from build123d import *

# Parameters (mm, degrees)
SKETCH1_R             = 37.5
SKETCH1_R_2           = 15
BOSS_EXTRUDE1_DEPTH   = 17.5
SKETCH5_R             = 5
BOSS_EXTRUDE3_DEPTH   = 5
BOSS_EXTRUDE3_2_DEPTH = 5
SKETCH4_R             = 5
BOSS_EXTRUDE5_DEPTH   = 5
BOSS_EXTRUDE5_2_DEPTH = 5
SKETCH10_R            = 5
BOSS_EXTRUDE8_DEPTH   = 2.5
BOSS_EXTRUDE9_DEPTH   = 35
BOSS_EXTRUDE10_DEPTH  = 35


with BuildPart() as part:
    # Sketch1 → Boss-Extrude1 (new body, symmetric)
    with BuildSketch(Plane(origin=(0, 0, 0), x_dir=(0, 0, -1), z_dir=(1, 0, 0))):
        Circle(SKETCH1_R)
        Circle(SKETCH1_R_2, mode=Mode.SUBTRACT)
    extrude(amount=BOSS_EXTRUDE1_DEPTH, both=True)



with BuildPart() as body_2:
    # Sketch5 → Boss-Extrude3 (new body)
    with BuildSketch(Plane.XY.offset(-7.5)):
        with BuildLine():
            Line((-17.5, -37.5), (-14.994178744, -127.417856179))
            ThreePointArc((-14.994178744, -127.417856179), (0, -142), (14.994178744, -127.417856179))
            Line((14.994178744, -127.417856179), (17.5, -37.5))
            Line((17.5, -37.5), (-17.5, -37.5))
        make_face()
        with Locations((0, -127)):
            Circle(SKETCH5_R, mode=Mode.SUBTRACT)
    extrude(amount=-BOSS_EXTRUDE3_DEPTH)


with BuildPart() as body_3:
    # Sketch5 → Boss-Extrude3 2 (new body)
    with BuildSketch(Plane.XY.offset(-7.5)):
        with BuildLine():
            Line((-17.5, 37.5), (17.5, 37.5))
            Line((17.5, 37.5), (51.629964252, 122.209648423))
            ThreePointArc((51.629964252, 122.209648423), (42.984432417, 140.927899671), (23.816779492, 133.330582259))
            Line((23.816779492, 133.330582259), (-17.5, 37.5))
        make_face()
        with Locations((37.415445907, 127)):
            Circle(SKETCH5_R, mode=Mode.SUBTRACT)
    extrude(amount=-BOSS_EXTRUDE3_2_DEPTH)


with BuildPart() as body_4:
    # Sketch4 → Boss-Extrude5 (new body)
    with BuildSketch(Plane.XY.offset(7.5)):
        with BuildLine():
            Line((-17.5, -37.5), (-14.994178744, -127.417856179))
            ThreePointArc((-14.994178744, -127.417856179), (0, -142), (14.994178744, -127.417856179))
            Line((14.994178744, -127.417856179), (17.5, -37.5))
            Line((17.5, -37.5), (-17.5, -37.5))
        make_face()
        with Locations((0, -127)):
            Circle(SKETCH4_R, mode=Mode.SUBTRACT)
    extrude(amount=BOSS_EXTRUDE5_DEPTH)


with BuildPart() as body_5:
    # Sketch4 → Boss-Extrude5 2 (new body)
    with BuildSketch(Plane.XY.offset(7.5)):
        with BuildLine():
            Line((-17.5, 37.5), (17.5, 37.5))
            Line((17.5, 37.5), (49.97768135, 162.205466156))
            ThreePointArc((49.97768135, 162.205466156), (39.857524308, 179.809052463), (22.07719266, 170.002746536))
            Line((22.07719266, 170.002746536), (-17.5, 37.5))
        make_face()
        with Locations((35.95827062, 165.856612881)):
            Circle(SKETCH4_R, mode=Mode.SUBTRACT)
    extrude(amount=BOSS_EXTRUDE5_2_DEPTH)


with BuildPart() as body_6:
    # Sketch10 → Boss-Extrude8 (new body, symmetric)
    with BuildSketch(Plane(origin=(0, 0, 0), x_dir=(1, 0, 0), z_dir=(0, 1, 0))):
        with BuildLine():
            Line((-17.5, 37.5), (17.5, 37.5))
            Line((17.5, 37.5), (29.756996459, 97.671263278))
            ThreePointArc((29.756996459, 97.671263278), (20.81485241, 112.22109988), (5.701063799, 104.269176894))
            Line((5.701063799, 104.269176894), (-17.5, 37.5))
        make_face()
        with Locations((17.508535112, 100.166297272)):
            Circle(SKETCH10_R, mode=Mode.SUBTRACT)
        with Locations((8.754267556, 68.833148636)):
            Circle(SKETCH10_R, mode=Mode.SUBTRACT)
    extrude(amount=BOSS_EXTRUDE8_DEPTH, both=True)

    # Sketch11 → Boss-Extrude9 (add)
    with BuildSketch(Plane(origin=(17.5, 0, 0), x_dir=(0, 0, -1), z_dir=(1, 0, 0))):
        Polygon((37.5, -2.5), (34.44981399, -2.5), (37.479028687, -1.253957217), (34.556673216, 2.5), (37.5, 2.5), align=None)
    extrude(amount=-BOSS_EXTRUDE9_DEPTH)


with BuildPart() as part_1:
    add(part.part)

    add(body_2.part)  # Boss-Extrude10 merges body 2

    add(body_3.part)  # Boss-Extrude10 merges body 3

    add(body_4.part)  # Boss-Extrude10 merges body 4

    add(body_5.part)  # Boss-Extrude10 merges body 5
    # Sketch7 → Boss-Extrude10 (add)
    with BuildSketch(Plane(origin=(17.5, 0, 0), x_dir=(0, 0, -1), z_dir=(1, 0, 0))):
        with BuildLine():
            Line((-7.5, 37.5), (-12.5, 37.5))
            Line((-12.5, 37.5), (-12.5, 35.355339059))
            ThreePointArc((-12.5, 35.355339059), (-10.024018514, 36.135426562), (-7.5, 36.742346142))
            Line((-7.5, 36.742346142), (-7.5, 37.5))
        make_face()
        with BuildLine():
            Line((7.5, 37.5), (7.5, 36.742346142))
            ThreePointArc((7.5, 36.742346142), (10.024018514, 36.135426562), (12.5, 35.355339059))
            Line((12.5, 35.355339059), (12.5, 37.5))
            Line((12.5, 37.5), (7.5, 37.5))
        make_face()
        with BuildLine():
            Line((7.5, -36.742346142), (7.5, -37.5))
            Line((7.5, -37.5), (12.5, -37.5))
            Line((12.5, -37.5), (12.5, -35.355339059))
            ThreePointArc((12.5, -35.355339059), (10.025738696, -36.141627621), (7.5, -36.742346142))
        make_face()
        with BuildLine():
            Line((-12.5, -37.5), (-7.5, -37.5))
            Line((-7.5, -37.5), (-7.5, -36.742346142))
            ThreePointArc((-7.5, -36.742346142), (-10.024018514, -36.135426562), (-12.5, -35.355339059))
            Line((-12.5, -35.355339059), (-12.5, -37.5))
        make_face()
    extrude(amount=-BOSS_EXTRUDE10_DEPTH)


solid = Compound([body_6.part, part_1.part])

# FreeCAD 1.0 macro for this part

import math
import FreeCAD as App
import Part
import Sketcher

V = App.Vector
Q = App.Units.Quantity


def add_polygon(sketch, points):
    """Adds a closed chain of lines whose ends are joined by coincident constraints."""
    first, n = sketch.GeometryCount, len(points)
    for a, b in zip(points, points[1:] + points[:1]):
        sketch.addGeometry(Part.LineSegment(App.Vector(*a, 0), App.Vector(*b, 0)), False)
    for i in range(n):
        sketch.addConstraint(Sketcher.Constraint("Coincident", first + i, 2, first + (i + 1) % n, 1))

doc = App.newDocument("Part")
body = doc.addObject("PartDesign::Body", "Body")

sketch1 = doc.addObject("Sketcher::SketchObject", "Sketch")
body.addObject(sketch1)
sketch1.AttachmentSupport = (doc.YZ_Plane, [""])
sketch1.MapMode = "FlatFace"
sketch1.addGeometry([
    Part.Circle(V(0, 0, 0), V(0, 0, 1), 38),
    Part.Circle(V(0, 0, 0), V(0, 0, 1), 15),
], False)
sketch1.addConstraint([
    Sketcher.Constraint("Coincident", 0, 3, -1, 1),
    Sketcher.Constraint("Coincident", 1, 3, -1, 1),
    Sketcher.Constraint("Diameter", 0, Q("75 mm")),
    Sketcher.Constraint("Diameter", 1, Q("30 mm")),
])
pad1 = doc.addObject("PartDesign::Pad", "Pad")
body.addObject(pad1)
pad1.Profile = sketch1
pad1.Length = 35
pad1.Midplane = True
body2 = doc.addObject("PartDesign::Body", "Body001")

sketch2 = doc.addObject("Sketcher::SketchObject", "Sketch001")
body2.addObject(sketch2)
sketch2.AttachmentSupport = (doc.getObject("XY_Plane001"), [""])
sketch2.MapMode = "FlatFace"
sketch2.AttachmentOffset = App.Placement(V(0, 0, -7.5), App.Rotation())
sketch2.addGeometry([
    Part.LineSegment(V(-18, -38, 0), V(-15, -127, 0)),
    Part.ArcOfCircle(Part.Circle(V(0, -127, 0), V(0, 0, 1), 15), math.radians(-178), math.radians(-2)),
    Part.LineSegment(V(15, -127, 0), V(18, -38, 0)),
    Part.LineSegment(V(18, -38, 0), V(-18, -38, 0)),
    Part.Circle(V(0, -127, 0), V(0, 0, 1), 5),
], False)
sketch2.addConstraint([
    Sketcher.Constraint("Tangent", 0, 2, 1, 1),
    Sketcher.Constraint("Tangent", 1, 2, 2, 1),
    Sketcher.Constraint("Coincident", 2, 2, 3, 1),
    Sketcher.Constraint("Coincident", 3, 2, 0, 1),
    Sketcher.Constraint("Horizontal", 3),
    Sketcher.Constraint("Coincident", 4, 3, 1, 3),
    Sketcher.Constraint("Symmetric", 0, 2, 1, 2, -2),
    Sketcher.Constraint("Diameter", 4, Q("10 mm")),
    Sketcher.Constraint("Radius", 1, Q("15 mm")),
    Sketcher.Constraint("DistanceX", 3, 2, 3, 1, Q("35 mm")),
    Sketcher.Constraint("DistanceY", 1, 3, -1, 1, Q("127 mm")),
    Sketcher.Constraint("DistanceY", 2, 2, -1, 1, Q("37.5 mm")),
])
pad2 = doc.addObject("PartDesign::Pad", "Pad001")
body2.addObject(pad2)
pad2.Profile = sketch2
pad2.Length = 5
pad2.Reversed = True
body3 = doc.addObject("PartDesign::Body", "Body002")

sketch3 = doc.addObject("Sketcher::SketchObject", "Sketch002")
body3.addObject(sketch3)
sketch3.AttachmentSupport = (doc.getObject("XY_Plane002"), [""])
sketch3.MapMode = "FlatFace"
sketch3.AttachmentOffset = App.Placement(V(0, 0, -7.5), App.Rotation())
sketch3.addGeometry([
    Part.LineSegment(V(-18, 38, 0), V(18, 38, 0)),
    Part.LineSegment(V(18, 38, 0), V(52, 122, 0)),
    Part.ArcOfCircle(Part.Circle(V(37, 127, 0), V(0, 0, 1), 15), math.radians(-19), math.radians(155)),
    Part.LineSegment(V(24, 133, 0), V(-18, 38, 0)),
    Part.Circle(V(37, 127, 0), V(0, 0, 1), 5),
], False)
sketch3.addConstraint([
    Sketcher.Constraint("Coincident", 0, 2, 1, 1),
    Sketcher.Constraint("Coincident", 1, 2, 2, 1),
    Sketcher.Constraint("Coincident", 2, 2, 3, 1),
    Sketcher.Constraint("Coincident", 3, 2, 0, 1),
    Sketcher.Constraint("Horizontal", 0),
    Sketcher.Constraint("Coincident", 4, 3, 2, 3),
    Sketcher.Constraint("Diameter", 4, Q("10 mm")),
    Sketcher.Constraint("Radius", 2, Q("15 mm")),
    Sketcher.Constraint("DistanceX", 0, 1, 0, 2, Q("35 mm")),
    Sketcher.Constraint("DistanceY", -1, 1, 2, 3, Q("127 mm")),
    Sketcher.Constraint("DistanceX", -1, 1, 0, 2, Q("17.5 mm")),
    Sketcher.Constraint("DistanceY", -1, 1, 0, 2, Q("37.5 mm")),
    Sketcher.Constraint("Distance", 1, Q("91.32677 mm")),
    Sketcher.Constraint("DistanceY", -1, 1, 1, 2, Q("122.209648 mm")),
    Sketcher.Constraint("DistanceX", -1, 1, 2, 2, Q("23.816779 mm")),
])
pad3 = doc.addObject("PartDesign::Pad", "Pad002")
body3.addObject(pad3)
pad3.Profile = sketch3
pad3.Length = 5
pad3.Reversed = True
body4 = doc.addObject("PartDesign::Body", "Body003")

sketch4 = doc.addObject("Sketcher::SketchObject", "Sketch003")
body4.addObject(sketch4)
sketch4.AttachmentSupport = (doc.getObject("XY_Plane003"), [""])
sketch4.MapMode = "FlatFace"
sketch4.AttachmentOffset = App.Placement(V(0, 0, 7.5), App.Rotation())
sketch4.addGeometry([
    Part.LineSegment(V(-18, -38, 0), V(-15, -127, 0)),
    Part.ArcOfCircle(Part.Circle(V(0, -127, 0), V(0, 0, 1), 15), math.radians(-178), math.radians(-2)),
    Part.LineSegment(V(15, -127, 0), V(18, -38, 0)),
    Part.LineSegment(V(18, -38, 0), V(-18, -38, 0)),
    Part.Circle(V(0, -127, 0), V(0, 0, 1), 5),
], False)
sketch4.addConstraint([
    Sketcher.Constraint("Tangent", 0, 2, 1, 1),
    Sketcher.Constraint("Tangent", 1, 2, 2, 1),
    Sketcher.Constraint("Coincident", 2, 2, 3, 1),
    Sketcher.Constraint("Coincident", 3, 2, 0, 1),
    Sketcher.Constraint("Horizontal", 3),
    Sketcher.Constraint("Coincident", 4, 3, 1, 3),
    Sketcher.Constraint("Symmetric", 0, 2, 1, 2, -2),
    Sketcher.Constraint("Diameter", 4, Q("10 mm")),
    Sketcher.Constraint("Radius", 1, Q("15 mm")),
    Sketcher.Constraint("DistanceX", 3, 2, 3, 1, Q("35 mm")),
    Sketcher.Constraint("DistanceY", 1, 3, -1, 1, Q("127 mm")),
    Sketcher.Constraint("DistanceY", 2, 2, -1, 1, Q("37.5 mm")),
])
pad4 = doc.addObject("PartDesign::Pad", "Pad003")
body4.addObject(pad4)
pad4.Profile = sketch4
pad4.Length = 5
body5 = doc.addObject("PartDesign::Body", "Body004")

sketch5 = doc.addObject("Sketcher::SketchObject", "Sketch004")
body5.addObject(sketch5)
sketch5.AttachmentSupport = (doc.getObject("XY_Plane004"), [""])
sketch5.MapMode = "FlatFace"
sketch5.AttachmentOffset = App.Placement(V(0, 0, 7.5), App.Rotation())
sketch5.addGeometry([
    Part.LineSegment(V(-18, 38, 0), V(18, 38, 0)),
    Part.LineSegment(V(18, 38, 0), V(50, 162, 0)),
    Part.ArcOfCircle(Part.Circle(V(36, 166, 0), V(0, 0, 1), 14), math.radians(-15), math.radians(163)),
    Part.LineSegment(V(22, 170, 0), V(-18, 38, 0)),
    Part.Circle(V(36, 166, 0), V(0, 0, 1), 5),
], False)
sketch5.addConstraint([
    Sketcher.Constraint("Coincident", 0, 2, 1, 1),
    Sketcher.Constraint("Tangent", 1, 2, 2, 1),
    Sketcher.Constraint("Tangent", 2, 2, 3, 1),
    Sketcher.Constraint("Coincident", 3, 2, 0, 1),
    Sketcher.Constraint("Horizontal", 0),
    Sketcher.Constraint("Coincident", 4, 3, 2, 3),
    Sketcher.Constraint("Diameter", 4, Q("10 mm")),
    Sketcher.Constraint("DistanceX", 0, 1, 0, 2, Q("35 mm")),
    Sketcher.Constraint("DistanceX", -1, 1, 0, 2, Q("17.5 mm")),
    Sketcher.Constraint("DistanceY", -1, 1, 0, 2, Q("37.5 mm")),
    Sketcher.Constraint("Radius", 2, Q("14.487055 mm")),
    Sketcher.Constraint("Distance", 1, Q("128.865252 mm")),
    Sketcher.Constraint("DistanceX", -1, 1, 2, 3, Q("35.958271 mm")),
])
pad5 = doc.addObject("PartDesign::Pad", "Pad004")
body5.addObject(pad5)
pad5.Profile = sketch5
pad5.Length = 5
body6 = doc.addObject("PartDesign::Body", "Body005")

sketch6 = doc.addObject("Sketcher::SketchObject", "Sketch005")
body6.addObject(sketch6)
sketch6.AttachmentSupport = (doc.getObject("XZ_Plane005"), [""])
sketch6.MapMode = "FlatFace"
sketch6.addGeometry([
    Part.LineSegment(V(-18, -38, 0), V(18, -38, 0)),
    Part.LineSegment(V(18, -38, 0), V(30, -98, 0)),
    Part.ArcOfCircle(Part.Circle(V(18, -100, 0), V(0, 0, 1), 12), math.radians(-161), math.radians(12)),
    Part.LineSegment(V(6, -104, 0), V(-18, -38, 0)),
    Part.Circle(V(9, -69, 0), V(0, 0, 1), 5),
    Part.Circle(V(18, -100, 0), V(0, 0, 1), 5),
], False)
sketch6.addConstraint([
    Sketcher.Constraint("Coincident", 0, 2, 1, 1),
    Sketcher.Constraint("Tangent", 1, 2, 2, 2),
    Sketcher.Constraint("Tangent", 2, 1, 3, 1),
    Sketcher.Constraint("Coincident", 3, 2, 0, 1),
    Sketcher.Constraint("Horizontal", 0),
    Sketcher.Constraint("Coincident", 5, 3, 2, 3),
    Sketcher.Constraint("Equal", 4, 5),
    Sketcher.Constraint("Diameter", 4, Q("10 mm")),
    Sketcher.Constraint("Radius", 2, Q("12.5 mm")),
    Sketcher.Constraint("DistanceX", 0, 1, 0, 2, Q("35 mm")),
    Sketcher.Constraint("DistanceX", -1, 1, 0, 2, Q("17.5 mm")),
    Sketcher.Constraint("DistanceY", 0, 2, -1, 1, Q("37.5 mm")),
    Sketcher.Constraint("Distance", 1, Q("61.406961 mm")),
    Sketcher.Constraint("DistanceY", 4, 3, -1, 1, Q("68.833149 mm")),
    Sketcher.Constraint("DistanceX", 2, 3, 1, 2, Q("12.248461 mm")),
    Sketcher.Constraint("DistanceX", 4, 3, 1, 2, Q("21.002729 mm")),
])
pad6 = doc.addObject("PartDesign::Pad", "Pad005")
body6.addObject(pad6)
pad6.Profile = sketch6
pad6.Length = 5
pad6.Midplane = True

sketch7 = doc.addObject("Sketcher::SketchObject", "Sketch006")
body6.addObject(sketch7)
sketch7.AttachmentSupport = (doc.getObject("YZ_Plane005"), [""])
sketch7.MapMode = "FlatFace"
sketch7.AttachmentOffset = App.Placement(V(0, 0, 17.5), App.Rotation())
add_polygon(sketch7, [(-2.5, -34.4), (-2.5, -37.5), (2.5, -37.5), (2.5, -34.6), (-1.3, -37.5)])
sketch7.addConstraint([
    Sketcher.Constraint("Vertical", 0),
    Sketcher.Constraint("Horizontal", 1),
    Sketcher.Constraint("Vertical", 2),
    Sketcher.Constraint("DistanceX", 1, 1, 1, 2, Q("5 mm")),
    Sketcher.Constraint("DistanceX", 0, 2, -1, 1, Q("2.5 mm")),
    Sketcher.Constraint("DistanceY", 0, 2, -1, 1, Q("37.5 mm")),
    Sketcher.Constraint("Distance", 4, Q("3.275479 mm")),
    Sketcher.Constraint("DistanceY", 0, 2, 0, 1, Q("3.050186 mm")),
    Sketcher.Constraint("DistanceY", 2, 1, 2, 2, Q("2.943327 mm")),
    Sketcher.Constraint("DistanceY", 3, 2, -1, 1, Q("37.479029 mm")),
])
pad7 = doc.addObject("PartDesign::Pad", "Pad006")
body6.addObject(pad7)
pad7.Profile = sketch7
pad7.Length = 35
pad7.Reversed = True
body.AllowCompound = True
doc.recompute()

boolean = doc.addObject("PartDesign::Boolean", "Boolean")
body.addObject(boolean)
boolean.Type = "Fuse"
boolean.addObjects([body2])
doc.recompute()

boolean2 = doc.addObject("PartDesign::Boolean", "Boolean001")
body.addObject(boolean2)
boolean2.Type = "Fuse"
boolean2.addObjects([body3])
doc.recompute()

boolean3 = doc.addObject("PartDesign::Boolean", "Boolean002")
body.addObject(boolean3)
boolean3.Type = "Fuse"
boolean3.addObjects([body4])
doc.recompute()

boolean4 = doc.addObject("PartDesign::Boolean", "Boolean003")
body.addObject(boolean4)
boolean4.Type = "Fuse"
boolean4.addObjects([body5])

sketch8 = doc.addObject("Sketcher::SketchObject", "Sketch007")
body.addObject(sketch8)
sketch8.AttachmentSupport = (doc.YZ_Plane, [""])
sketch8.MapMode = "FlatFace"
sketch8.AttachmentOffset = App.Placement(V(0, 0, 17.5), App.Rotation())
sketch8.addGeometry([
    Part.LineSegment(V(37.5, 7.5, 0), V(37.5, 12.5, 0)),
    Part.LineSegment(V(37.5, 12.5, 0), V(35.4, 12.5, 0)),
    Part.ArcOfCircle(Part.Circle(V(0, 0, 0), V(0, 0, 1), 37.5), math.radians(11.54), math.radians(19.47)),
    Part.LineSegment(V(36.7, 7.5, 0), V(37.5, 7.5, 0)),
    Part.LineSegment(V(37.5, -7.5, 0), V(36.7, -7.5, 0)),
    Part.ArcOfCircle(Part.Circle(V(0, 0, 0), V(0, 0, 1), 37.5), math.radians(-19.47), math.radians(-11.54)),
    Part.LineSegment(V(35.4, -12.5, 0), V(37.5, -12.5, 0)),
    Part.LineSegment(V(37.5, -12.5, 0), V(37.5, -7.5, 0)),
    Part.LineSegment(V(-36.7, -7.5, 0), V(-37.5, -7.5, 0)),
    Part.LineSegment(V(-37.5, -7.5, 0), V(-37.5, -12.5, 0)),
    Part.LineSegment(V(-37.5, -12.5, 0), V(-35.4, -12.5, 0)),
    Part.ArcOfCircle(Part.Circle(V(-2.4, -0.7, 0), V(0, 0, 1), 35), math.radians(-168.75), math.radians(-160.24)),
    Part.LineSegment(V(-37.5, 12.5, 0), V(-37.5, 7.5, 0)),
    Part.LineSegment(V(-37.5, 7.5, 0), V(-36.7, 7.5, 0)),
    Part.ArcOfCircle(Part.Circle(V(0, 0, 0), V(0, 0, 1), 37.5), math.radians(160.53), math.radians(168.46)),
    Part.LineSegment(V(-35.4, 12.5, 0), V(-37.5, 12.5, 0)),
], False)
sketch8.addConstraint([
    Sketcher.Constraint("Coincident", 0, 2, 1, 1),
    Sketcher.Constraint("Coincident", 1, 2, 2, 2),
    Sketcher.Constraint("Coincident", 2, 1, 3, 1),
    Sketcher.Constraint("Coincident", 3, 2, 0, 1),
    Sketcher.Constraint("Coincident", 4, 2, 5, 2),
    Sketcher.Constraint("Coincident", 5, 1, 6, 1),
    Sketcher.Constraint("Coincident", 6, 2, 7, 1),
    Sketcher.Constraint("Coincident", 7, 2, 4, 1),
    Sketcher.Constraint("Coincident", 8, 2, 9, 1),
    Sketcher.Constraint("Coincident", 9, 2, 10, 1),
    Sketcher.Constraint("Coincident", 10, 2, 11, 2),
    Sketcher.Constraint("Coincident", 11, 1, 8, 1),
    Sketcher.Constraint("Coincident", 12, 2, 13, 1),
    Sketcher.Constraint("Coincident", 13, 2, 14, 2),
    Sketcher.Constraint("Coincident", 14, 1, 15, 1),
    Sketcher.Constraint("Coincident", 15, 2, 12, 1),
    Sketcher.Constraint("Vertical", 0),
    Sketcher.Constraint("Horizontal", 1),
    Sketcher.Constraint("Horizontal", 3),
    Sketcher.Constraint("Horizontal", 4),
    Sketcher.Constraint("Horizontal", 6),
    Sketcher.Constraint("Vertical", 7),
    Sketcher.Constraint("Horizontal", 8),
    Sketcher.Constraint("Vertical", 9),
    Sketcher.Constraint("Horizontal", 10),
    Sketcher.Constraint("Vertical", 12),
    Sketcher.Constraint("Horizontal", 13),
    Sketcher.Constraint("Horizontal", 15),
    Sketcher.Constraint("Coincident", 2, 3, -1, 1),
    Sketcher.Constraint("Coincident", 5, 3, -1, 1),
    Sketcher.Constraint("Coincident", 14, 3, -1, 1),
    Sketcher.Constraint("Equal", 2, 5),
    Sketcher.Constraint("Equal", 5, 14),
    Sketcher.Constraint("Symmetric", 3, 2, 8, 2, -1, 1),
    Sketcher.Constraint("Symmetric", 1, 2, 10, 2, -1, 1),
    Sketcher.Constraint("Symmetric", 7, 2, 12, 2, -1, 1),
    Sketcher.Constraint("Symmetric", 7, 2, 8, 2, -2),
    Sketcher.Constraint("Horizontal", 6, 2, 9, 2),
    Sketcher.Constraint("Horizontal", 1, 2, 14, 1),
    Sketcher.Constraint("Vertical", 11, 1, 13, 2),
    Sketcher.Constraint("Radius", 11, Q("35 mm")),
    Sketcher.Constraint("Radius", 2, Q("37.5 mm")),
    Sketcher.Constraint("DistanceY", 0, 1, 0, 2, Q("5 mm")),
    Sketcher.Constraint("DistanceY", 4, 2, 2, 1, Q("15 mm")),
    Sketcher.Constraint("DistanceX", -1, 1, 0, 2, Q("37.5 mm")),
])
pad8 = doc.addObject("PartDesign::Pad", "Pad007")
body.addObject(pad8)
pad8.Profile = sketch8
pad8.Length = 35
pad8.Reversed = True

doc.recompute()
